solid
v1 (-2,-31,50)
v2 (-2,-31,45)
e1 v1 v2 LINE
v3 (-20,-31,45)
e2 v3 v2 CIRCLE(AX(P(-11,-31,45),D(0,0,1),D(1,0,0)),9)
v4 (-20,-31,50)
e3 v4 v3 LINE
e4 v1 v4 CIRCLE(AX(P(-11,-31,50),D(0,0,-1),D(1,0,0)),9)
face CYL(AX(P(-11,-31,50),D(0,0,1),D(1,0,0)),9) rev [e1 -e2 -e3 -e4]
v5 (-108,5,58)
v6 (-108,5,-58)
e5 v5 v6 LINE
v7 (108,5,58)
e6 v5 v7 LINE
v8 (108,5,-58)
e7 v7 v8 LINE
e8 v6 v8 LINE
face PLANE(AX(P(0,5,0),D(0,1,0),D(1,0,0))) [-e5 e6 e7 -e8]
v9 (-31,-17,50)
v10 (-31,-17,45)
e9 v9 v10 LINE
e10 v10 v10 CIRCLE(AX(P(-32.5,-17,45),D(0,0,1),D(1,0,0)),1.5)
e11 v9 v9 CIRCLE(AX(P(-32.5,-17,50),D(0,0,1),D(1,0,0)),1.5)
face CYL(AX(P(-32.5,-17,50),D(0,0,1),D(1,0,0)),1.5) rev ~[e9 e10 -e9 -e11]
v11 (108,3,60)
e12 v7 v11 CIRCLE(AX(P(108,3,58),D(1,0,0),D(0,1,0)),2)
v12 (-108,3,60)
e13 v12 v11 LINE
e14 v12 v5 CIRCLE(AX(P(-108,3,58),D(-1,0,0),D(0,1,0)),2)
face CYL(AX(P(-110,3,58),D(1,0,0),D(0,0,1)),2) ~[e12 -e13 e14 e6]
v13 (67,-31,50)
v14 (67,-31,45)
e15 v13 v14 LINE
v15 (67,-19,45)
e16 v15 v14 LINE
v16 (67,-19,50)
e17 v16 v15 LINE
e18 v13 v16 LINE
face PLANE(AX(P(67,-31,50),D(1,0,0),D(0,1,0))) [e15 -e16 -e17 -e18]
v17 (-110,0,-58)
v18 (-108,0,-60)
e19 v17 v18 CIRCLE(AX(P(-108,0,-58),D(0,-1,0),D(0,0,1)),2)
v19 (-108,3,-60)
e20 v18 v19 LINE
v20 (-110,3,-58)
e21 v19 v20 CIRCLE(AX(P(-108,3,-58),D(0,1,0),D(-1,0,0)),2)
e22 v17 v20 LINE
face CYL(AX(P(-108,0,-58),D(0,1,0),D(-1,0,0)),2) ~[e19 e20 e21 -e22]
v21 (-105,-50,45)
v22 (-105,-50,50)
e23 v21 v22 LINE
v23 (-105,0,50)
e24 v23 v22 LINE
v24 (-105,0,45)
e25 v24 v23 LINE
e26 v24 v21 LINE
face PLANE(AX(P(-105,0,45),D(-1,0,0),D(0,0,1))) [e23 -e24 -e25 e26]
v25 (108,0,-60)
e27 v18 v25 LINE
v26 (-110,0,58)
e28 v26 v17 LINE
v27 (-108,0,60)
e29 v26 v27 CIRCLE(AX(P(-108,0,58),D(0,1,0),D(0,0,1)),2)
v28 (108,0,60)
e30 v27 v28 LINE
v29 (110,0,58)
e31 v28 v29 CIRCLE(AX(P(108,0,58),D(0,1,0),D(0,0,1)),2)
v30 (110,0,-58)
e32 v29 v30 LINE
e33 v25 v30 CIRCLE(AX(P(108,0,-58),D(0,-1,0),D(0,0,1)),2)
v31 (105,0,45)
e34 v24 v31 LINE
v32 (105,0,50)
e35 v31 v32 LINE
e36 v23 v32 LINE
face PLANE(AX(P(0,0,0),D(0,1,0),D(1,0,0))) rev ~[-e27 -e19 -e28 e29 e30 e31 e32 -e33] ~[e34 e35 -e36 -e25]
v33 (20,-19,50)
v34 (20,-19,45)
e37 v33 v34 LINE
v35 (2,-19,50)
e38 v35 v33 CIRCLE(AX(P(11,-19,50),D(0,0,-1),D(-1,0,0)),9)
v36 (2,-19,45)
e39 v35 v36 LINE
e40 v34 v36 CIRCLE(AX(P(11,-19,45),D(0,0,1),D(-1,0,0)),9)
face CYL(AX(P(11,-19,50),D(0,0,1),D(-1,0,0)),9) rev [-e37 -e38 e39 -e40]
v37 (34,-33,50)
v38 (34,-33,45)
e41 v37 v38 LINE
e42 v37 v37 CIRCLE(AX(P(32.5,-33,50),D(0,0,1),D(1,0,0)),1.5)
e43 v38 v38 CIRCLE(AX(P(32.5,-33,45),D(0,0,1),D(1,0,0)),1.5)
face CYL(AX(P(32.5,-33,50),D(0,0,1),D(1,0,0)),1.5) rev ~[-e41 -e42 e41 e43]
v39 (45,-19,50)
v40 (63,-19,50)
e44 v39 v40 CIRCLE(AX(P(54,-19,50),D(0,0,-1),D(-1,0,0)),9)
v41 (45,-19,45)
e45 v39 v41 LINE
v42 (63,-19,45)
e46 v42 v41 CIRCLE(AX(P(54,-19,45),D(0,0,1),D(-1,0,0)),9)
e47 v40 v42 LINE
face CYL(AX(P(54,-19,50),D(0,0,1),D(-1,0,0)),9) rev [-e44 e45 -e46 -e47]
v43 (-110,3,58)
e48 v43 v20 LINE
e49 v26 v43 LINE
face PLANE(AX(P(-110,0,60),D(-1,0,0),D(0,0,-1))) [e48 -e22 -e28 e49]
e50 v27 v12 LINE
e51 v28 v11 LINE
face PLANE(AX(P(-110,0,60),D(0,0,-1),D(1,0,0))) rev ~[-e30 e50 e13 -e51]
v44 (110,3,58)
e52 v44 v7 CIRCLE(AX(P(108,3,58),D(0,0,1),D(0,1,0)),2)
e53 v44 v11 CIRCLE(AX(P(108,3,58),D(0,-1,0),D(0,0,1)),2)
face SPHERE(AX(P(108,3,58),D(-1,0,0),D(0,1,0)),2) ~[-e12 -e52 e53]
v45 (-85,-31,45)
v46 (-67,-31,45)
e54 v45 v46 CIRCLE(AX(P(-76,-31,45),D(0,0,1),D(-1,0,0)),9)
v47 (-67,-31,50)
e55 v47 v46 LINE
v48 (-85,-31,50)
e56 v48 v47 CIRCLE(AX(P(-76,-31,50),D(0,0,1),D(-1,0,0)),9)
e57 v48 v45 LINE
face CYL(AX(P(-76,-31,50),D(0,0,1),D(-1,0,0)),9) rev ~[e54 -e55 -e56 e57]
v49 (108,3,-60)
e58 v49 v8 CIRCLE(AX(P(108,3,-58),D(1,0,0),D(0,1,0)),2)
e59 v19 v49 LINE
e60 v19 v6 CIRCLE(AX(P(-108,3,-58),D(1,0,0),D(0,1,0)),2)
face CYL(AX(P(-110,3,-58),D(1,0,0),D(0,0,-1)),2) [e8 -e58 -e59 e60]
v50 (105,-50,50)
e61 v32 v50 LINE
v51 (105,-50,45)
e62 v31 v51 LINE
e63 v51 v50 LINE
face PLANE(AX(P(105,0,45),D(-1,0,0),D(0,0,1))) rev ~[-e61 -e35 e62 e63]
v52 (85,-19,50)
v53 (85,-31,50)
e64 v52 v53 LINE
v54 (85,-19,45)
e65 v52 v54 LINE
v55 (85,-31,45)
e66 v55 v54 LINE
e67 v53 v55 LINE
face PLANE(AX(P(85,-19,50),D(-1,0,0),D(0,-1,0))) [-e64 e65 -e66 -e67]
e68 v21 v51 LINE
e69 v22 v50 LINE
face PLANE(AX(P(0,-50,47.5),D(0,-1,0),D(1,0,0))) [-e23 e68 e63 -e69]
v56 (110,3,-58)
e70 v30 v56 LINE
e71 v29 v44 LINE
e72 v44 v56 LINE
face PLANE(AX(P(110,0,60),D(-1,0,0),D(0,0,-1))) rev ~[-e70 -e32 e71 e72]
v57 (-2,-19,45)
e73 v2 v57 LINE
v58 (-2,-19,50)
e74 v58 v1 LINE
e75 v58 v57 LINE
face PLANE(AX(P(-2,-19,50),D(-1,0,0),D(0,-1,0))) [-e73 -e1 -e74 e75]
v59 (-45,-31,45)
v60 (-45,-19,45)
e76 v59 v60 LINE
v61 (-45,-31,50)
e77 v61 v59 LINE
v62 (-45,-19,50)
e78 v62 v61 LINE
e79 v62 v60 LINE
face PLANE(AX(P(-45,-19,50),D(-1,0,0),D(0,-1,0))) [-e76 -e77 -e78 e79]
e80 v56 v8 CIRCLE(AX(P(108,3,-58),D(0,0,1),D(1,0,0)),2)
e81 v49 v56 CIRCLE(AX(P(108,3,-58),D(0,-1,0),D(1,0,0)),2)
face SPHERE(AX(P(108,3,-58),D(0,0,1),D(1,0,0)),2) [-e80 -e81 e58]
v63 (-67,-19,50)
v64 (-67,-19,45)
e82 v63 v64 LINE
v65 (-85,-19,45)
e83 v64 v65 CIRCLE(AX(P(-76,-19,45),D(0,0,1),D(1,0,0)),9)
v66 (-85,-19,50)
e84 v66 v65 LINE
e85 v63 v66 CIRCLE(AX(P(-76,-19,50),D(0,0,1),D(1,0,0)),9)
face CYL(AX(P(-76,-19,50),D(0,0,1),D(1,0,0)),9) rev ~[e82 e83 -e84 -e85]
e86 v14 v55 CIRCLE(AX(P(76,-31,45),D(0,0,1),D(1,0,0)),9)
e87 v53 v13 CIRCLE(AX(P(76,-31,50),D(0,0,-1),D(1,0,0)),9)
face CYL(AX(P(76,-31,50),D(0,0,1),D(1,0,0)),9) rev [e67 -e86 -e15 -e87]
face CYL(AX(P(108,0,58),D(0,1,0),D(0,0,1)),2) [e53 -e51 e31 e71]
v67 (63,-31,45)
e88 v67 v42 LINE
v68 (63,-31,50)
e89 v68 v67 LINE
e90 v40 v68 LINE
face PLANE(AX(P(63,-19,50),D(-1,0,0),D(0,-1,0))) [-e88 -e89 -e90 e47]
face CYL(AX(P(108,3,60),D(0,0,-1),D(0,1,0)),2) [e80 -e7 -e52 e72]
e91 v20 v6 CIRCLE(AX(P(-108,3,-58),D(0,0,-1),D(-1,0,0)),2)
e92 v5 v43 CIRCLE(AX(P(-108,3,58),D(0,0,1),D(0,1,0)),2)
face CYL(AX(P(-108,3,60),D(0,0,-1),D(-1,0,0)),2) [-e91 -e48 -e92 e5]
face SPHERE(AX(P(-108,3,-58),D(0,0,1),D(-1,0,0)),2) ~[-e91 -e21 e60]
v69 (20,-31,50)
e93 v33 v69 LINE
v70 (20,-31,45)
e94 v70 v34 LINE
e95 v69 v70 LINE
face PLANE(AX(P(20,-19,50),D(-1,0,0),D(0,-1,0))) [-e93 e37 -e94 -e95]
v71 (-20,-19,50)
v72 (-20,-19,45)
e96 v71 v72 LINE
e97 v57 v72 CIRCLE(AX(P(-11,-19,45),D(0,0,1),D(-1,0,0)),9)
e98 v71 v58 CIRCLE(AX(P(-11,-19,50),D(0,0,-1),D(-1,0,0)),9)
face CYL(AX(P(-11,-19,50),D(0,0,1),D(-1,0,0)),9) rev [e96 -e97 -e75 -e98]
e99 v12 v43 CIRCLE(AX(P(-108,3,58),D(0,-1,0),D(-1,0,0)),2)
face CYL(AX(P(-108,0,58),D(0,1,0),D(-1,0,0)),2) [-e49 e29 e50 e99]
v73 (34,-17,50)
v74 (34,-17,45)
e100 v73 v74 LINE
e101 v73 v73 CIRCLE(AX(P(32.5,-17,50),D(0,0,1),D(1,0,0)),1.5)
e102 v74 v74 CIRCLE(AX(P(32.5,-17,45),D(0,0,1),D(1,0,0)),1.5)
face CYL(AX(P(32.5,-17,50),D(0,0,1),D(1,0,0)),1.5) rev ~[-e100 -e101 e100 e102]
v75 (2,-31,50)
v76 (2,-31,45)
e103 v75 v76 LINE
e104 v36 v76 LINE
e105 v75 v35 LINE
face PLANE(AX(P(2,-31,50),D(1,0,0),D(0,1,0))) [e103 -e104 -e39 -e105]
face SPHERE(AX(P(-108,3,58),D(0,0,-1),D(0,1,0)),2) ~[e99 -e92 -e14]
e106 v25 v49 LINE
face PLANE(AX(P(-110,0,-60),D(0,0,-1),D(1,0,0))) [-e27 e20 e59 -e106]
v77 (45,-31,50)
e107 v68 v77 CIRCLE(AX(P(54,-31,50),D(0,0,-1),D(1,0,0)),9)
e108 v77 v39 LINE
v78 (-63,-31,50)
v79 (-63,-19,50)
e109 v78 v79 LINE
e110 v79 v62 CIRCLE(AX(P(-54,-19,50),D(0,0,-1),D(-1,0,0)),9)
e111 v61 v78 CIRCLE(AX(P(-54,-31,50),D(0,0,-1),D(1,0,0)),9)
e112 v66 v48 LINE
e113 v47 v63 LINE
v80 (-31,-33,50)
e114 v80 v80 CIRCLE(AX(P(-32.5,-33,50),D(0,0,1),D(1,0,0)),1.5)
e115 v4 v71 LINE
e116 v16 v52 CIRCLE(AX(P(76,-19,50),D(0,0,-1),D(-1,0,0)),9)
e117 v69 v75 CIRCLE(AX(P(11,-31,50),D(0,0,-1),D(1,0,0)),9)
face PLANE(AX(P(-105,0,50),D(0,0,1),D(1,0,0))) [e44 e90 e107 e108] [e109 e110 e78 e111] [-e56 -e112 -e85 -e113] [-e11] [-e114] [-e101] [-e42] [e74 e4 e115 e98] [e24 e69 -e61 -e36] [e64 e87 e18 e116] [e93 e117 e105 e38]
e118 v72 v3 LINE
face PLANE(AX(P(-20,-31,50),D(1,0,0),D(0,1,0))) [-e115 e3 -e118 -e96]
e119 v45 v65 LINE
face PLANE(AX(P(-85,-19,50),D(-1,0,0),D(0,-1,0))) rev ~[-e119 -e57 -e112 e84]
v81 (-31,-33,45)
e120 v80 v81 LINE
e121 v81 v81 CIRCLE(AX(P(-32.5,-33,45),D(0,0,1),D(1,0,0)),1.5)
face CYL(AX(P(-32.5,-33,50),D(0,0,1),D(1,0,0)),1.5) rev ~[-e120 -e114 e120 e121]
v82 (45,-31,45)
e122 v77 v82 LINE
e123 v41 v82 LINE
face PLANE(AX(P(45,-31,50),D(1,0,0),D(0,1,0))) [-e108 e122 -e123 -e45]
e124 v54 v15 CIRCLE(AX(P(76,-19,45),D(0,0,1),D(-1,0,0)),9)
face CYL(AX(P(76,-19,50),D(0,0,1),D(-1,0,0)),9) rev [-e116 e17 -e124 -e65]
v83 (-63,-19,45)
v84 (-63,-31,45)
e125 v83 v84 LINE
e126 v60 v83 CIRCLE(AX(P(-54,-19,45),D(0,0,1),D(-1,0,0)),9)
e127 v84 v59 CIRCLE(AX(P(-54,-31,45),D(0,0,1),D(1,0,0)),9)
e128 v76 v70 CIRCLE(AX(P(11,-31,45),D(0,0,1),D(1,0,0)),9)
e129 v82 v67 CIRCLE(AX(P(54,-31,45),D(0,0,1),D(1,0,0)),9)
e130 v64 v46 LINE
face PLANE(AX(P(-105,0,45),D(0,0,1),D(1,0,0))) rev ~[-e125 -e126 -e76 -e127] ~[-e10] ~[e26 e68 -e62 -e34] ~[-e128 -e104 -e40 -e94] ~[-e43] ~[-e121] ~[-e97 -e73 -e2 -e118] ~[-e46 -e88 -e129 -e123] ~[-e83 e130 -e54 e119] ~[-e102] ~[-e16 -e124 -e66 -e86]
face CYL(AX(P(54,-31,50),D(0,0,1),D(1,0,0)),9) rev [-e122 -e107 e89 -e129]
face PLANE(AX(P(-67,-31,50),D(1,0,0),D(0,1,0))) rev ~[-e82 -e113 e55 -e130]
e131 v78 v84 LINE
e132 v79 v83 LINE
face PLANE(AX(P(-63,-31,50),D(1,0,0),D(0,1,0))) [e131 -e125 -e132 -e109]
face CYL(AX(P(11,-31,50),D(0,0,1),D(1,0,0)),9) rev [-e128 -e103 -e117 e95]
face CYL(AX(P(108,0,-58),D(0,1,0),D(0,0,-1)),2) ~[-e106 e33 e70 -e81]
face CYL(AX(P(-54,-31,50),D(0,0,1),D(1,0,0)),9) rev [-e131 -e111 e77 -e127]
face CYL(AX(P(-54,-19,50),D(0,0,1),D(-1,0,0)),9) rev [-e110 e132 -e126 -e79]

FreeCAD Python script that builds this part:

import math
import FreeCAD as App
import Part
import Sketcher
from FreeCAD import Vector


def edges_at(feature, points):
    """Names of the edges that pass closest to the given points."""
    edges = feature.Shape.Edges
    near = lambda p: min(range(len(edges)), key=lambda i: edges[i].distToShape(Part.Vertex(*p))[0])
    return sorted({f"Edge{near(p) + 1}" for p in points})


def add_polygon(sketch, points):
    """Adds a closed chain of lines whose ends are joined by coincident constraints."""
    first, n = sketch.GeometryCount, len(points)
    for a, b in zip(points, points[1:] + points[:1]):
        sketch.addGeometry(Part.LineSegment(App.Vector(*a, 0), App.Vector(*b, 0)), False)
    for i in range(n):
        sketch.addConstraint(Sketcher.Constraint("Coincident", first + i, 2, first + (i + 1) % n, 1))

doc = App.newDocument("Part")
body = doc.addObject("PartDesign::Body", "Body")

sketch1 = doc.addObject("Sketcher::SketchObject", "Sketch")
body.addObject(sketch1)
sketch1.AttachmentSupport = (doc.XZ_Plane, [""])
sketch1.MapMode = "FlatFace"
add_polygon(sketch1, [(-110, -60), (-110, 60), (110, 60), (110, -60)])
sketch1.addConstraint([
    Sketcher.Constraint("Vertical", 0),
    Sketcher.Constraint("Horizontal", 1),
    Sketcher.Constraint("Vertical", 2),
    Sketcher.Constraint("Horizontal", 3),
    Sketcher.Constraint("Symmetric", 0, 2, 2, 2, -1, 1),
    Sketcher.Constraint("DistanceX", 1, 1, 1, 2, 220.0),
    Sketcher.Constraint("DistanceY", 0, 1, 0, 2, 120.0),
])
pad1 = doc.addObject("PartDesign::Pad", "Pad")
body.addObject(pad1)
pad1.Profile = sketch1
pad1.Length = 5
pad1.Reversed = True

sketch2 = doc.addObject("Sketcher::SketchObject", "Sketch001")
body.addObject(sketch2)
sketch2.AttachmentSupport = (doc.XZ_Plane, [""])
sketch2.MapMode = "FlatFace"
add_polygon(sketch2, [(-105, 50), (-105, 45), (105, 45), (105, 50)])
sketch2.addConstraint([
    Sketcher.Constraint("Vertical", 0),
    Sketcher.Constraint("Horizontal", 1),
    Sketcher.Constraint("Vertical", 2),
    Sketcher.Constraint("Horizontal", 3),
    Sketcher.Constraint("DistanceX", 1, 1, 1, 2, 210.0),
    Sketcher.Constraint("DistanceY", 0, 2, 0, 1, 5.0),
    Sketcher.Constraint("DistanceX", 0, 2, -1, 1, 105.0),
    Sketcher.Constraint("DistanceY", -1, 1, 0, 2, 45.0),
])
pad2 = doc.addObject("PartDesign::Pad", "Pad001")
body.addObject(pad2)
pad2.Profile = sketch2
pad2.Length = 50

sketch3 = doc.addObject("Sketcher::SketchObject", "Sketch002")
body.addObject(sketch3)
sketch3.AttachmentSupport = (doc.XY_Plane, [""])
sketch3.MapMode = "FlatFace"
sketch3.AttachmentOffset = App.Placement(Vector(0, 0, 50), App.Rotation())
sketch3.addGeometry([
    Part.LineSegment(Vector(-45, -31, 0), Vector(-45, -19, 0)),
    Part.ArcOfCircle(Part.Circle(Vector(-54, -19, 0), Vector(0, 0, 1), 9), math.radians(0), math.radians(180)),
    Part.LineSegment(Vector(-63, -19, 0), Vector(-63, -31, 0)),
    Part.ArcOfCircle(Part.Circle(Vector(-54, -31, 0), Vector(0, 0, 1), 9), math.radians(180), math.radians(360)),
], False)
sketch3.addConstraint([
    Sketcher.Constraint("Tangent", 0, 2, 1, 1),
    Sketcher.Constraint("Tangent", 1, 2, 2, 1),
    Sketcher.Constraint("Tangent", 2, 2, 3, 1),
    Sketcher.Constraint("Tangent", 3, 2, 0, 1),
    Sketcher.Constraint("Vertical", 0),
    Sketcher.Constraint("Vertical", 2),
    Sketcher.Constraint("Radius", 1, 9.0),
    Sketcher.Constraint("DistanceY", 0, 1, 0, 2, 12.0),
    Sketcher.Constraint("DistanceX", 1, 3, -1, 1, 54.0),
    Sketcher.Constraint("DistanceY", 1, 3, -1, 1, 19.0),
])
pocket1 = doc.addObject("PartDesign::Pocket", "Pocket")
body.addObject(pocket1)
pocket1.Profile = sketch3
pocket1.Type = "UpToFirst"

sketch4 = doc.addObject("Sketcher::SketchObject", "Sketch003")
body.addObject(sketch4)
sketch4.AttachmentSupport = (doc.XY_Plane, [""])
sketch4.MapMode = "FlatFace"
sketch4.AttachmentOffset = App.Placement(Vector(0, 0, 50), App.Rotation())
sketch4.addGeometry([
    Part.LineSegment(Vector(-85, -19, 0), Vector(-85, -31, 0)),
    Part.ArcOfCircle(Part.Circle(Vector(-76, -31, 0), Vector(0, 0, 1), 9), math.radians(180), math.radians(360)),
    Part.LineSegment(Vector(-67, -31, 0), Vector(-67, -19, 0)),
    Part.ArcOfCircle(Part.Circle(Vector(-76, -19, 0), Vector(0, 0, 1), 9), math.radians(0), math.radians(180)),
], False)
sketch4.addConstraint([
    Sketcher.Constraint("Tangent", 0, 2, 1, 1),
    Sketcher.Constraint("Tangent", 1, 2, 2, 1),
    Sketcher.Constraint("Tangent", 2, 2, 3, 1),
    Sketcher.Constraint("Tangent", 3, 2, 0, 1),
    Sketcher.Constraint("Vertical", 0),
    Sketcher.Constraint("Vertical", 2),
    Sketcher.Constraint("Radius", 1, 9.0),
    Sketcher.Constraint("DistanceY", 0, 2, 0, 1, 12.0),
    Sketcher.Constraint("DistanceX", 1, 3, -1, 1, 76.0),
    Sketcher.Constraint("DistanceY", 1, 3, -1, 1, 31.0),
])
pocket2 = doc.addObject("PartDesign::Pocket", "Pocket001")
body.addObject(pocket2)
pocket2.Profile = sketch4
pocket2.Type = "UpToFirst"

sketch5 = doc.addObject("Sketcher::SketchObject", "Sketch004")
body.addObject(sketch5)
sketch5.AttachmentSupport = (doc.XY_Plane, [""])
sketch5.MapMode = "FlatFace"
sketch5.AttachmentOffset = App.Placement(Vector(0, 0, 50), App.Rotation())
sketch5.addGeometry([
    Part.LineSegment(Vector(20, -31, 0), Vector(20, -19, 0)),
    Part.ArcOfCircle(Part.Circle(Vector(11, -19, 0), Vector(0, 0, 1), 9), math.radians(0), math.radians(180)),
    Part.LineSegment(Vector(2, -19, 0), Vector(2, -31, 0)),
    Part.ArcOfCircle(Part.Circle(Vector(11, -31, 0), Vector(0, 0, 1), 9), math.radians(180), math.radians(360)),
], False)
sketch5.addConstraint([
    Sketcher.Constraint("Tangent", 0, 2, 1, 1),
    Sketcher.Constraint("Tangent", 1, 2, 2, 1),
    Sketcher.Constraint("Tangent", 2, 2, 3, 1),
    Sketcher.Constraint("Tangent", 3, 2, 0, 1),
    Sketcher.Constraint("Vertical", 0),
    Sketcher.Constraint("Vertical", 2),
    Sketcher.Constraint("Radius", 1, 9.0),
    Sketcher.Constraint("DistanceY", 0, 1, 0, 2, 12.0),
    Sketcher.Constraint("DistanceX", -1, 1, 1, 3, 11.0),
    Sketcher.Constraint("DistanceY", 1, 3, -1, 1, 19.0),
])
pocket3 = doc.addObject("PartDesign::Pocket", "Pocket002")
body.addObject(pocket3)
pocket3.Profile = sketch5
pocket3.Type = "UpToFirst"

sketch6 = doc.addObject("Sketcher::SketchObject", "Sketch005")
body.addObject(sketch6)
sketch6.AttachmentSupport = (doc.XY_Plane, [""])
sketch6.MapMode = "FlatFace"
sketch6.AttachmentOffset = App.Placement(Vector(0, 0, 50), App.Rotation())
sketch6.addGeometry([
    Part.LineSegment(Vector(-2, -31, 0), Vector(-2, -19, 0)),
    Part.ArcOfCircle(Part.Circle(Vector(-11, -19, 0), Vector(0, 0, 1), 9), math.radians(0), math.radians(180)),
    Part.LineSegment(Vector(-20, -19, 0), Vector(-20, -31, 0)),
    Part.ArcOfCircle(Part.Circle(Vector(-11, -31, 0), Vector(0, 0, 1), 9), math.radians(180), math.radians(360)),
], False)
sketch6.addConstraint([
    Sketcher.Constraint("Tangent", 0, 2, 1, 1),
    Sketcher.Constraint("Tangent", 1, 2, 2, 1),
    Sketcher.Constraint("Tangent", 2, 2, 3, 1),
    Sketcher.Constraint("Tangent", 3, 2, 0, 1),
    Sketcher.Constraint("Vertical", 0),
    Sketcher.Constraint("Vertical", 2),
    Sketcher.Constraint("Radius", 1, 9.0),
    Sketcher.Constraint("DistanceY", 0, 1, 0, 2, 12.0),
    Sketcher.Constraint("DistanceX", 1, 3, -1, 1, 11.0),
    Sketcher.Constraint("DistanceY", 1, 3, -1, 1, 19.0),
])
pocket4 = doc.addObject("PartDesign::Pocket", "Pocket003")
body.addObject(pocket4)
pocket4.Profile = sketch6
pocket4.Type = "UpToFirst"

sketch7 = doc.addObject("Sketcher::SketchObject", "Sketch006")
body.addObject(sketch7)
sketch7.AttachmentSupport = (doc.XY_Plane, [""])
sketch7.MapMode = "FlatFace"
sketch7.AttachmentOffset = App.Placement(Vector(0, 0, 50), App.Rotation())
sketch7.addGeometry([
    Part.LineSegment(Vector(85, -31, 0), Vector(85, -19, 0)),
    Part.ArcOfCircle(Part.Circle(Vector(76, -19, 0), Vector(0, 0, 1), 9), math.radians(0), math.radians(180)),
    Part.LineSegment(Vector(67, -19, 0), Vector(67, -31, 0)),
    Part.ArcOfCircle(Part.Circle(Vector(76, -31, 0), Vector(0, 0, 1), 9), math.radians(180), math.radians(360)),
], False)
sketch7.addConstraint([
    Sketcher.Constraint("Tangent", 0, 2, 1, 1),
    Sketcher.Constraint("Tangent", 1, 2, 2, 1),
    Sketcher.Constraint("Tangent", 2, 2, 3, 1),
    Sketcher.Constraint("Tangent", 3, 2, 0, 1),
    Sketcher.Constraint("Vertical", 0),
    Sketcher.Constraint("Vertical", 2),
    Sketcher.Constraint("Radius", 1, 9.0),
    Sketcher.Constraint("DistanceY", 0, 1, 0, 2, 12.0),
    Sketcher.Constraint("DistanceX", -1, 1, 1, 3, 76.0),
    Sketcher.Constraint("DistanceY", 1, 3, -1, 1, 19.0),
])
pocket5 = doc.addObject("PartDesign::Pocket", "Pocket004")
body.addObject(pocket5)
pocket5.Profile = sketch7
pocket5.Type = "UpToFirst"

sketch8 = doc.addObject("Sketcher::SketchObject", "Sketch007")
body.addObject(sketch8)
sketch8.AttachmentSupport = (doc.XY_Plane, [""])
sketch8.MapMode = "FlatFace"
sketch8.AttachmentOffset = App.Placement(Vector(0, 0, 50), App.Rotation())
sketch8.addGeometry([
    Part.LineSegment(Vector(63, -31, 0), Vector(63, -19, 0)),
    Part.ArcOfCircle(Part.Circle(Vector(54, -19, 0), Vector(0, 0, 1), 9), math.radians(0), math.radians(180)),
    Part.LineSegment(Vector(45, -19, 0), Vector(45, -31, 0)),
    Part.ArcOfCircle(Part.Circle(Vector(54, -31, 0), Vector(0, 0, 1), 9), math.radians(180), math.radians(360)),
], False)
sketch8.addConstraint([
    Sketcher.Constraint("Tangent", 0, 2, 1, 1),
    Sketcher.Constraint("Tangent", 1, 2, 2, 1),
    Sketcher.Constraint("Tangent", 2, 2, 3, 1),
    Sketcher.Constraint("Tangent", 3, 2, 0, 1),
    Sketcher.Constraint("Vertical", 0),
    Sketcher.Constraint("Vertical", 2),
    Sketcher.Constraint("Radius", 1, 9.0),
    Sketcher.Constraint("DistanceY", 0, 1, 0, 2, 12.0),
    Sketcher.Constraint("DistanceX", -1, 1, 1, 3, 54.0),
    Sketcher.Constraint("DistanceY", 1, 3, -1, 1, 19.0),
])
pocket6 = doc.addObject("PartDesign::Pocket", "Pocket005")
body.addObject(pocket6)
pocket6.Profile = sketch8
pocket6.Type = "UpToFirst"
doc.recompute()

fillet = doc.addObject("PartDesign::Fillet", "Fillet")
body.addObject(fillet)
fillet.Base = (pocket6, edges_at(pocket6, [
    (-110, 5, 0),
    (0, 5, 60),
    (110, 5, 0),
    (110, 2.5, 60),
    (-110, 2.5, 60),
    (-110, 2.5, -60),
    (110, 2.5, -60),
    (0, 5, -60),
]))
fillet.Radius = 2

sketch9 = doc.addObject("Sketcher::SketchObject", "Sketch008")
body.addObject(sketch9)
sketch9.AttachmentSupport = (doc.XY_Plane, [""])
sketch9.MapMode = "FlatFace"
sketch9.AttachmentOffset = App.Placement(Vector(0, 0, 50), App.Rotation())
sketch9.addGeometry(Part.Circle(Vector(-32.5, -17, 0), Vector(0, 0, 1), 1.5), False)
sketch9.addConstraint([
    Sketcher.Constraint("Diameter", 0, 3.0),
    Sketcher.Constraint("DistanceY", 0, 3, -1, 1, 17.0),
    Sketcher.Constraint("DistanceX", 0, 3, -1, 1, 32.5),
])
pocket7 = doc.addObject("PartDesign::Pocket", "Pocket006")
body.addObject(pocket7)
pocket7.Profile = sketch9
pocket7.Type = "UpToFirst"

sketch10 = doc.addObject("Sketcher::SketchObject", "Sketch009")
body.addObject(sketch10)
sketch10.AttachmentSupport = (doc.XY_Plane, [""])
sketch10.MapMode = "FlatFace"
sketch10.AttachmentOffset = App.Placement(Vector(0, 0, 50), App.Rotation())
sketch10.addGeometry(Part.Circle(Vector(-32.5, -33, 0), Vector(0, 0, 1), 1.5), False)
sketch10.addConstraint([
    Sketcher.Constraint("Diameter", 0, 3.0),
    Sketcher.Constraint("DistanceY", 0, 3, -1, 1, 33.0),
    Sketcher.Constraint("DistanceX", 0, 3, -1, 1, 32.5),
])
pocket8 = doc.addObject("PartDesign::Pocket", "Pocket007")
body.addObject(pocket8)
pocket8.Profile = sketch10
pocket8.Type = "UpToFirst"

sketch11 = doc.addObject("Sketcher::SketchObject", "Sketch010")
body.addObject(sketch11)
sketch11.AttachmentSupport = (doc.XY_Plane, [""])
sketch11.MapMode = "FlatFace"
sketch11.AttachmentOffset = App.Placement(Vector(0, 0, 50), App.Rotation())
sketch11.addGeometry(Part.Circle(Vector(32.5, -17, 0), Vector(0, 0, 1), 1.5), False)
sketch11.addConstraint([
    Sketcher.Constraint("Diameter", 0, 3.0),
    Sketcher.Constraint("DistanceY", 0, 3, -1, 1, 17.0),
    Sketcher.Constraint("DistanceX", -1, 1, 0, 3, 32.5),
])
pocket9 = doc.addObject("PartDesign::Pocket", "Pocket008")
body.addObject(pocket9)
pocket9.Profile = sketch11
pocket9.Type = "UpToFirst"

sketch12 = doc.addObject("Sketcher::SketchObject", "Sketch011")
body.addObject(sketch12)
sketch12.AttachmentSupport = (doc.XY_Plane, [""])
sketch12.MapMode = "FlatFace"
sketch12.AttachmentOffset = App.Placement(Vector(0, 0, 50), App.Rotation())
sketch12.addGeometry(Part.Circle(Vector(32.5, -33, 0), Vector(0, 0, 1), 1.5), False)
sketch12.addConstraint([
    Sketcher.Constraint("Diameter", 0, 3.0),
    Sketcher.Constraint("DistanceY", 0, 3, -1, 1, 33.0),
    Sketcher.Constraint("DistanceX", -1, 1, 0, 3, 32.5),
])
pocket10 = doc.addObject("PartDesign::Pocket", "Pocket009")
body.addObject(pocket10)
pocket10.Profile = sketch12
pocket10.Type = "UpToFirst"

doc.recompute()
